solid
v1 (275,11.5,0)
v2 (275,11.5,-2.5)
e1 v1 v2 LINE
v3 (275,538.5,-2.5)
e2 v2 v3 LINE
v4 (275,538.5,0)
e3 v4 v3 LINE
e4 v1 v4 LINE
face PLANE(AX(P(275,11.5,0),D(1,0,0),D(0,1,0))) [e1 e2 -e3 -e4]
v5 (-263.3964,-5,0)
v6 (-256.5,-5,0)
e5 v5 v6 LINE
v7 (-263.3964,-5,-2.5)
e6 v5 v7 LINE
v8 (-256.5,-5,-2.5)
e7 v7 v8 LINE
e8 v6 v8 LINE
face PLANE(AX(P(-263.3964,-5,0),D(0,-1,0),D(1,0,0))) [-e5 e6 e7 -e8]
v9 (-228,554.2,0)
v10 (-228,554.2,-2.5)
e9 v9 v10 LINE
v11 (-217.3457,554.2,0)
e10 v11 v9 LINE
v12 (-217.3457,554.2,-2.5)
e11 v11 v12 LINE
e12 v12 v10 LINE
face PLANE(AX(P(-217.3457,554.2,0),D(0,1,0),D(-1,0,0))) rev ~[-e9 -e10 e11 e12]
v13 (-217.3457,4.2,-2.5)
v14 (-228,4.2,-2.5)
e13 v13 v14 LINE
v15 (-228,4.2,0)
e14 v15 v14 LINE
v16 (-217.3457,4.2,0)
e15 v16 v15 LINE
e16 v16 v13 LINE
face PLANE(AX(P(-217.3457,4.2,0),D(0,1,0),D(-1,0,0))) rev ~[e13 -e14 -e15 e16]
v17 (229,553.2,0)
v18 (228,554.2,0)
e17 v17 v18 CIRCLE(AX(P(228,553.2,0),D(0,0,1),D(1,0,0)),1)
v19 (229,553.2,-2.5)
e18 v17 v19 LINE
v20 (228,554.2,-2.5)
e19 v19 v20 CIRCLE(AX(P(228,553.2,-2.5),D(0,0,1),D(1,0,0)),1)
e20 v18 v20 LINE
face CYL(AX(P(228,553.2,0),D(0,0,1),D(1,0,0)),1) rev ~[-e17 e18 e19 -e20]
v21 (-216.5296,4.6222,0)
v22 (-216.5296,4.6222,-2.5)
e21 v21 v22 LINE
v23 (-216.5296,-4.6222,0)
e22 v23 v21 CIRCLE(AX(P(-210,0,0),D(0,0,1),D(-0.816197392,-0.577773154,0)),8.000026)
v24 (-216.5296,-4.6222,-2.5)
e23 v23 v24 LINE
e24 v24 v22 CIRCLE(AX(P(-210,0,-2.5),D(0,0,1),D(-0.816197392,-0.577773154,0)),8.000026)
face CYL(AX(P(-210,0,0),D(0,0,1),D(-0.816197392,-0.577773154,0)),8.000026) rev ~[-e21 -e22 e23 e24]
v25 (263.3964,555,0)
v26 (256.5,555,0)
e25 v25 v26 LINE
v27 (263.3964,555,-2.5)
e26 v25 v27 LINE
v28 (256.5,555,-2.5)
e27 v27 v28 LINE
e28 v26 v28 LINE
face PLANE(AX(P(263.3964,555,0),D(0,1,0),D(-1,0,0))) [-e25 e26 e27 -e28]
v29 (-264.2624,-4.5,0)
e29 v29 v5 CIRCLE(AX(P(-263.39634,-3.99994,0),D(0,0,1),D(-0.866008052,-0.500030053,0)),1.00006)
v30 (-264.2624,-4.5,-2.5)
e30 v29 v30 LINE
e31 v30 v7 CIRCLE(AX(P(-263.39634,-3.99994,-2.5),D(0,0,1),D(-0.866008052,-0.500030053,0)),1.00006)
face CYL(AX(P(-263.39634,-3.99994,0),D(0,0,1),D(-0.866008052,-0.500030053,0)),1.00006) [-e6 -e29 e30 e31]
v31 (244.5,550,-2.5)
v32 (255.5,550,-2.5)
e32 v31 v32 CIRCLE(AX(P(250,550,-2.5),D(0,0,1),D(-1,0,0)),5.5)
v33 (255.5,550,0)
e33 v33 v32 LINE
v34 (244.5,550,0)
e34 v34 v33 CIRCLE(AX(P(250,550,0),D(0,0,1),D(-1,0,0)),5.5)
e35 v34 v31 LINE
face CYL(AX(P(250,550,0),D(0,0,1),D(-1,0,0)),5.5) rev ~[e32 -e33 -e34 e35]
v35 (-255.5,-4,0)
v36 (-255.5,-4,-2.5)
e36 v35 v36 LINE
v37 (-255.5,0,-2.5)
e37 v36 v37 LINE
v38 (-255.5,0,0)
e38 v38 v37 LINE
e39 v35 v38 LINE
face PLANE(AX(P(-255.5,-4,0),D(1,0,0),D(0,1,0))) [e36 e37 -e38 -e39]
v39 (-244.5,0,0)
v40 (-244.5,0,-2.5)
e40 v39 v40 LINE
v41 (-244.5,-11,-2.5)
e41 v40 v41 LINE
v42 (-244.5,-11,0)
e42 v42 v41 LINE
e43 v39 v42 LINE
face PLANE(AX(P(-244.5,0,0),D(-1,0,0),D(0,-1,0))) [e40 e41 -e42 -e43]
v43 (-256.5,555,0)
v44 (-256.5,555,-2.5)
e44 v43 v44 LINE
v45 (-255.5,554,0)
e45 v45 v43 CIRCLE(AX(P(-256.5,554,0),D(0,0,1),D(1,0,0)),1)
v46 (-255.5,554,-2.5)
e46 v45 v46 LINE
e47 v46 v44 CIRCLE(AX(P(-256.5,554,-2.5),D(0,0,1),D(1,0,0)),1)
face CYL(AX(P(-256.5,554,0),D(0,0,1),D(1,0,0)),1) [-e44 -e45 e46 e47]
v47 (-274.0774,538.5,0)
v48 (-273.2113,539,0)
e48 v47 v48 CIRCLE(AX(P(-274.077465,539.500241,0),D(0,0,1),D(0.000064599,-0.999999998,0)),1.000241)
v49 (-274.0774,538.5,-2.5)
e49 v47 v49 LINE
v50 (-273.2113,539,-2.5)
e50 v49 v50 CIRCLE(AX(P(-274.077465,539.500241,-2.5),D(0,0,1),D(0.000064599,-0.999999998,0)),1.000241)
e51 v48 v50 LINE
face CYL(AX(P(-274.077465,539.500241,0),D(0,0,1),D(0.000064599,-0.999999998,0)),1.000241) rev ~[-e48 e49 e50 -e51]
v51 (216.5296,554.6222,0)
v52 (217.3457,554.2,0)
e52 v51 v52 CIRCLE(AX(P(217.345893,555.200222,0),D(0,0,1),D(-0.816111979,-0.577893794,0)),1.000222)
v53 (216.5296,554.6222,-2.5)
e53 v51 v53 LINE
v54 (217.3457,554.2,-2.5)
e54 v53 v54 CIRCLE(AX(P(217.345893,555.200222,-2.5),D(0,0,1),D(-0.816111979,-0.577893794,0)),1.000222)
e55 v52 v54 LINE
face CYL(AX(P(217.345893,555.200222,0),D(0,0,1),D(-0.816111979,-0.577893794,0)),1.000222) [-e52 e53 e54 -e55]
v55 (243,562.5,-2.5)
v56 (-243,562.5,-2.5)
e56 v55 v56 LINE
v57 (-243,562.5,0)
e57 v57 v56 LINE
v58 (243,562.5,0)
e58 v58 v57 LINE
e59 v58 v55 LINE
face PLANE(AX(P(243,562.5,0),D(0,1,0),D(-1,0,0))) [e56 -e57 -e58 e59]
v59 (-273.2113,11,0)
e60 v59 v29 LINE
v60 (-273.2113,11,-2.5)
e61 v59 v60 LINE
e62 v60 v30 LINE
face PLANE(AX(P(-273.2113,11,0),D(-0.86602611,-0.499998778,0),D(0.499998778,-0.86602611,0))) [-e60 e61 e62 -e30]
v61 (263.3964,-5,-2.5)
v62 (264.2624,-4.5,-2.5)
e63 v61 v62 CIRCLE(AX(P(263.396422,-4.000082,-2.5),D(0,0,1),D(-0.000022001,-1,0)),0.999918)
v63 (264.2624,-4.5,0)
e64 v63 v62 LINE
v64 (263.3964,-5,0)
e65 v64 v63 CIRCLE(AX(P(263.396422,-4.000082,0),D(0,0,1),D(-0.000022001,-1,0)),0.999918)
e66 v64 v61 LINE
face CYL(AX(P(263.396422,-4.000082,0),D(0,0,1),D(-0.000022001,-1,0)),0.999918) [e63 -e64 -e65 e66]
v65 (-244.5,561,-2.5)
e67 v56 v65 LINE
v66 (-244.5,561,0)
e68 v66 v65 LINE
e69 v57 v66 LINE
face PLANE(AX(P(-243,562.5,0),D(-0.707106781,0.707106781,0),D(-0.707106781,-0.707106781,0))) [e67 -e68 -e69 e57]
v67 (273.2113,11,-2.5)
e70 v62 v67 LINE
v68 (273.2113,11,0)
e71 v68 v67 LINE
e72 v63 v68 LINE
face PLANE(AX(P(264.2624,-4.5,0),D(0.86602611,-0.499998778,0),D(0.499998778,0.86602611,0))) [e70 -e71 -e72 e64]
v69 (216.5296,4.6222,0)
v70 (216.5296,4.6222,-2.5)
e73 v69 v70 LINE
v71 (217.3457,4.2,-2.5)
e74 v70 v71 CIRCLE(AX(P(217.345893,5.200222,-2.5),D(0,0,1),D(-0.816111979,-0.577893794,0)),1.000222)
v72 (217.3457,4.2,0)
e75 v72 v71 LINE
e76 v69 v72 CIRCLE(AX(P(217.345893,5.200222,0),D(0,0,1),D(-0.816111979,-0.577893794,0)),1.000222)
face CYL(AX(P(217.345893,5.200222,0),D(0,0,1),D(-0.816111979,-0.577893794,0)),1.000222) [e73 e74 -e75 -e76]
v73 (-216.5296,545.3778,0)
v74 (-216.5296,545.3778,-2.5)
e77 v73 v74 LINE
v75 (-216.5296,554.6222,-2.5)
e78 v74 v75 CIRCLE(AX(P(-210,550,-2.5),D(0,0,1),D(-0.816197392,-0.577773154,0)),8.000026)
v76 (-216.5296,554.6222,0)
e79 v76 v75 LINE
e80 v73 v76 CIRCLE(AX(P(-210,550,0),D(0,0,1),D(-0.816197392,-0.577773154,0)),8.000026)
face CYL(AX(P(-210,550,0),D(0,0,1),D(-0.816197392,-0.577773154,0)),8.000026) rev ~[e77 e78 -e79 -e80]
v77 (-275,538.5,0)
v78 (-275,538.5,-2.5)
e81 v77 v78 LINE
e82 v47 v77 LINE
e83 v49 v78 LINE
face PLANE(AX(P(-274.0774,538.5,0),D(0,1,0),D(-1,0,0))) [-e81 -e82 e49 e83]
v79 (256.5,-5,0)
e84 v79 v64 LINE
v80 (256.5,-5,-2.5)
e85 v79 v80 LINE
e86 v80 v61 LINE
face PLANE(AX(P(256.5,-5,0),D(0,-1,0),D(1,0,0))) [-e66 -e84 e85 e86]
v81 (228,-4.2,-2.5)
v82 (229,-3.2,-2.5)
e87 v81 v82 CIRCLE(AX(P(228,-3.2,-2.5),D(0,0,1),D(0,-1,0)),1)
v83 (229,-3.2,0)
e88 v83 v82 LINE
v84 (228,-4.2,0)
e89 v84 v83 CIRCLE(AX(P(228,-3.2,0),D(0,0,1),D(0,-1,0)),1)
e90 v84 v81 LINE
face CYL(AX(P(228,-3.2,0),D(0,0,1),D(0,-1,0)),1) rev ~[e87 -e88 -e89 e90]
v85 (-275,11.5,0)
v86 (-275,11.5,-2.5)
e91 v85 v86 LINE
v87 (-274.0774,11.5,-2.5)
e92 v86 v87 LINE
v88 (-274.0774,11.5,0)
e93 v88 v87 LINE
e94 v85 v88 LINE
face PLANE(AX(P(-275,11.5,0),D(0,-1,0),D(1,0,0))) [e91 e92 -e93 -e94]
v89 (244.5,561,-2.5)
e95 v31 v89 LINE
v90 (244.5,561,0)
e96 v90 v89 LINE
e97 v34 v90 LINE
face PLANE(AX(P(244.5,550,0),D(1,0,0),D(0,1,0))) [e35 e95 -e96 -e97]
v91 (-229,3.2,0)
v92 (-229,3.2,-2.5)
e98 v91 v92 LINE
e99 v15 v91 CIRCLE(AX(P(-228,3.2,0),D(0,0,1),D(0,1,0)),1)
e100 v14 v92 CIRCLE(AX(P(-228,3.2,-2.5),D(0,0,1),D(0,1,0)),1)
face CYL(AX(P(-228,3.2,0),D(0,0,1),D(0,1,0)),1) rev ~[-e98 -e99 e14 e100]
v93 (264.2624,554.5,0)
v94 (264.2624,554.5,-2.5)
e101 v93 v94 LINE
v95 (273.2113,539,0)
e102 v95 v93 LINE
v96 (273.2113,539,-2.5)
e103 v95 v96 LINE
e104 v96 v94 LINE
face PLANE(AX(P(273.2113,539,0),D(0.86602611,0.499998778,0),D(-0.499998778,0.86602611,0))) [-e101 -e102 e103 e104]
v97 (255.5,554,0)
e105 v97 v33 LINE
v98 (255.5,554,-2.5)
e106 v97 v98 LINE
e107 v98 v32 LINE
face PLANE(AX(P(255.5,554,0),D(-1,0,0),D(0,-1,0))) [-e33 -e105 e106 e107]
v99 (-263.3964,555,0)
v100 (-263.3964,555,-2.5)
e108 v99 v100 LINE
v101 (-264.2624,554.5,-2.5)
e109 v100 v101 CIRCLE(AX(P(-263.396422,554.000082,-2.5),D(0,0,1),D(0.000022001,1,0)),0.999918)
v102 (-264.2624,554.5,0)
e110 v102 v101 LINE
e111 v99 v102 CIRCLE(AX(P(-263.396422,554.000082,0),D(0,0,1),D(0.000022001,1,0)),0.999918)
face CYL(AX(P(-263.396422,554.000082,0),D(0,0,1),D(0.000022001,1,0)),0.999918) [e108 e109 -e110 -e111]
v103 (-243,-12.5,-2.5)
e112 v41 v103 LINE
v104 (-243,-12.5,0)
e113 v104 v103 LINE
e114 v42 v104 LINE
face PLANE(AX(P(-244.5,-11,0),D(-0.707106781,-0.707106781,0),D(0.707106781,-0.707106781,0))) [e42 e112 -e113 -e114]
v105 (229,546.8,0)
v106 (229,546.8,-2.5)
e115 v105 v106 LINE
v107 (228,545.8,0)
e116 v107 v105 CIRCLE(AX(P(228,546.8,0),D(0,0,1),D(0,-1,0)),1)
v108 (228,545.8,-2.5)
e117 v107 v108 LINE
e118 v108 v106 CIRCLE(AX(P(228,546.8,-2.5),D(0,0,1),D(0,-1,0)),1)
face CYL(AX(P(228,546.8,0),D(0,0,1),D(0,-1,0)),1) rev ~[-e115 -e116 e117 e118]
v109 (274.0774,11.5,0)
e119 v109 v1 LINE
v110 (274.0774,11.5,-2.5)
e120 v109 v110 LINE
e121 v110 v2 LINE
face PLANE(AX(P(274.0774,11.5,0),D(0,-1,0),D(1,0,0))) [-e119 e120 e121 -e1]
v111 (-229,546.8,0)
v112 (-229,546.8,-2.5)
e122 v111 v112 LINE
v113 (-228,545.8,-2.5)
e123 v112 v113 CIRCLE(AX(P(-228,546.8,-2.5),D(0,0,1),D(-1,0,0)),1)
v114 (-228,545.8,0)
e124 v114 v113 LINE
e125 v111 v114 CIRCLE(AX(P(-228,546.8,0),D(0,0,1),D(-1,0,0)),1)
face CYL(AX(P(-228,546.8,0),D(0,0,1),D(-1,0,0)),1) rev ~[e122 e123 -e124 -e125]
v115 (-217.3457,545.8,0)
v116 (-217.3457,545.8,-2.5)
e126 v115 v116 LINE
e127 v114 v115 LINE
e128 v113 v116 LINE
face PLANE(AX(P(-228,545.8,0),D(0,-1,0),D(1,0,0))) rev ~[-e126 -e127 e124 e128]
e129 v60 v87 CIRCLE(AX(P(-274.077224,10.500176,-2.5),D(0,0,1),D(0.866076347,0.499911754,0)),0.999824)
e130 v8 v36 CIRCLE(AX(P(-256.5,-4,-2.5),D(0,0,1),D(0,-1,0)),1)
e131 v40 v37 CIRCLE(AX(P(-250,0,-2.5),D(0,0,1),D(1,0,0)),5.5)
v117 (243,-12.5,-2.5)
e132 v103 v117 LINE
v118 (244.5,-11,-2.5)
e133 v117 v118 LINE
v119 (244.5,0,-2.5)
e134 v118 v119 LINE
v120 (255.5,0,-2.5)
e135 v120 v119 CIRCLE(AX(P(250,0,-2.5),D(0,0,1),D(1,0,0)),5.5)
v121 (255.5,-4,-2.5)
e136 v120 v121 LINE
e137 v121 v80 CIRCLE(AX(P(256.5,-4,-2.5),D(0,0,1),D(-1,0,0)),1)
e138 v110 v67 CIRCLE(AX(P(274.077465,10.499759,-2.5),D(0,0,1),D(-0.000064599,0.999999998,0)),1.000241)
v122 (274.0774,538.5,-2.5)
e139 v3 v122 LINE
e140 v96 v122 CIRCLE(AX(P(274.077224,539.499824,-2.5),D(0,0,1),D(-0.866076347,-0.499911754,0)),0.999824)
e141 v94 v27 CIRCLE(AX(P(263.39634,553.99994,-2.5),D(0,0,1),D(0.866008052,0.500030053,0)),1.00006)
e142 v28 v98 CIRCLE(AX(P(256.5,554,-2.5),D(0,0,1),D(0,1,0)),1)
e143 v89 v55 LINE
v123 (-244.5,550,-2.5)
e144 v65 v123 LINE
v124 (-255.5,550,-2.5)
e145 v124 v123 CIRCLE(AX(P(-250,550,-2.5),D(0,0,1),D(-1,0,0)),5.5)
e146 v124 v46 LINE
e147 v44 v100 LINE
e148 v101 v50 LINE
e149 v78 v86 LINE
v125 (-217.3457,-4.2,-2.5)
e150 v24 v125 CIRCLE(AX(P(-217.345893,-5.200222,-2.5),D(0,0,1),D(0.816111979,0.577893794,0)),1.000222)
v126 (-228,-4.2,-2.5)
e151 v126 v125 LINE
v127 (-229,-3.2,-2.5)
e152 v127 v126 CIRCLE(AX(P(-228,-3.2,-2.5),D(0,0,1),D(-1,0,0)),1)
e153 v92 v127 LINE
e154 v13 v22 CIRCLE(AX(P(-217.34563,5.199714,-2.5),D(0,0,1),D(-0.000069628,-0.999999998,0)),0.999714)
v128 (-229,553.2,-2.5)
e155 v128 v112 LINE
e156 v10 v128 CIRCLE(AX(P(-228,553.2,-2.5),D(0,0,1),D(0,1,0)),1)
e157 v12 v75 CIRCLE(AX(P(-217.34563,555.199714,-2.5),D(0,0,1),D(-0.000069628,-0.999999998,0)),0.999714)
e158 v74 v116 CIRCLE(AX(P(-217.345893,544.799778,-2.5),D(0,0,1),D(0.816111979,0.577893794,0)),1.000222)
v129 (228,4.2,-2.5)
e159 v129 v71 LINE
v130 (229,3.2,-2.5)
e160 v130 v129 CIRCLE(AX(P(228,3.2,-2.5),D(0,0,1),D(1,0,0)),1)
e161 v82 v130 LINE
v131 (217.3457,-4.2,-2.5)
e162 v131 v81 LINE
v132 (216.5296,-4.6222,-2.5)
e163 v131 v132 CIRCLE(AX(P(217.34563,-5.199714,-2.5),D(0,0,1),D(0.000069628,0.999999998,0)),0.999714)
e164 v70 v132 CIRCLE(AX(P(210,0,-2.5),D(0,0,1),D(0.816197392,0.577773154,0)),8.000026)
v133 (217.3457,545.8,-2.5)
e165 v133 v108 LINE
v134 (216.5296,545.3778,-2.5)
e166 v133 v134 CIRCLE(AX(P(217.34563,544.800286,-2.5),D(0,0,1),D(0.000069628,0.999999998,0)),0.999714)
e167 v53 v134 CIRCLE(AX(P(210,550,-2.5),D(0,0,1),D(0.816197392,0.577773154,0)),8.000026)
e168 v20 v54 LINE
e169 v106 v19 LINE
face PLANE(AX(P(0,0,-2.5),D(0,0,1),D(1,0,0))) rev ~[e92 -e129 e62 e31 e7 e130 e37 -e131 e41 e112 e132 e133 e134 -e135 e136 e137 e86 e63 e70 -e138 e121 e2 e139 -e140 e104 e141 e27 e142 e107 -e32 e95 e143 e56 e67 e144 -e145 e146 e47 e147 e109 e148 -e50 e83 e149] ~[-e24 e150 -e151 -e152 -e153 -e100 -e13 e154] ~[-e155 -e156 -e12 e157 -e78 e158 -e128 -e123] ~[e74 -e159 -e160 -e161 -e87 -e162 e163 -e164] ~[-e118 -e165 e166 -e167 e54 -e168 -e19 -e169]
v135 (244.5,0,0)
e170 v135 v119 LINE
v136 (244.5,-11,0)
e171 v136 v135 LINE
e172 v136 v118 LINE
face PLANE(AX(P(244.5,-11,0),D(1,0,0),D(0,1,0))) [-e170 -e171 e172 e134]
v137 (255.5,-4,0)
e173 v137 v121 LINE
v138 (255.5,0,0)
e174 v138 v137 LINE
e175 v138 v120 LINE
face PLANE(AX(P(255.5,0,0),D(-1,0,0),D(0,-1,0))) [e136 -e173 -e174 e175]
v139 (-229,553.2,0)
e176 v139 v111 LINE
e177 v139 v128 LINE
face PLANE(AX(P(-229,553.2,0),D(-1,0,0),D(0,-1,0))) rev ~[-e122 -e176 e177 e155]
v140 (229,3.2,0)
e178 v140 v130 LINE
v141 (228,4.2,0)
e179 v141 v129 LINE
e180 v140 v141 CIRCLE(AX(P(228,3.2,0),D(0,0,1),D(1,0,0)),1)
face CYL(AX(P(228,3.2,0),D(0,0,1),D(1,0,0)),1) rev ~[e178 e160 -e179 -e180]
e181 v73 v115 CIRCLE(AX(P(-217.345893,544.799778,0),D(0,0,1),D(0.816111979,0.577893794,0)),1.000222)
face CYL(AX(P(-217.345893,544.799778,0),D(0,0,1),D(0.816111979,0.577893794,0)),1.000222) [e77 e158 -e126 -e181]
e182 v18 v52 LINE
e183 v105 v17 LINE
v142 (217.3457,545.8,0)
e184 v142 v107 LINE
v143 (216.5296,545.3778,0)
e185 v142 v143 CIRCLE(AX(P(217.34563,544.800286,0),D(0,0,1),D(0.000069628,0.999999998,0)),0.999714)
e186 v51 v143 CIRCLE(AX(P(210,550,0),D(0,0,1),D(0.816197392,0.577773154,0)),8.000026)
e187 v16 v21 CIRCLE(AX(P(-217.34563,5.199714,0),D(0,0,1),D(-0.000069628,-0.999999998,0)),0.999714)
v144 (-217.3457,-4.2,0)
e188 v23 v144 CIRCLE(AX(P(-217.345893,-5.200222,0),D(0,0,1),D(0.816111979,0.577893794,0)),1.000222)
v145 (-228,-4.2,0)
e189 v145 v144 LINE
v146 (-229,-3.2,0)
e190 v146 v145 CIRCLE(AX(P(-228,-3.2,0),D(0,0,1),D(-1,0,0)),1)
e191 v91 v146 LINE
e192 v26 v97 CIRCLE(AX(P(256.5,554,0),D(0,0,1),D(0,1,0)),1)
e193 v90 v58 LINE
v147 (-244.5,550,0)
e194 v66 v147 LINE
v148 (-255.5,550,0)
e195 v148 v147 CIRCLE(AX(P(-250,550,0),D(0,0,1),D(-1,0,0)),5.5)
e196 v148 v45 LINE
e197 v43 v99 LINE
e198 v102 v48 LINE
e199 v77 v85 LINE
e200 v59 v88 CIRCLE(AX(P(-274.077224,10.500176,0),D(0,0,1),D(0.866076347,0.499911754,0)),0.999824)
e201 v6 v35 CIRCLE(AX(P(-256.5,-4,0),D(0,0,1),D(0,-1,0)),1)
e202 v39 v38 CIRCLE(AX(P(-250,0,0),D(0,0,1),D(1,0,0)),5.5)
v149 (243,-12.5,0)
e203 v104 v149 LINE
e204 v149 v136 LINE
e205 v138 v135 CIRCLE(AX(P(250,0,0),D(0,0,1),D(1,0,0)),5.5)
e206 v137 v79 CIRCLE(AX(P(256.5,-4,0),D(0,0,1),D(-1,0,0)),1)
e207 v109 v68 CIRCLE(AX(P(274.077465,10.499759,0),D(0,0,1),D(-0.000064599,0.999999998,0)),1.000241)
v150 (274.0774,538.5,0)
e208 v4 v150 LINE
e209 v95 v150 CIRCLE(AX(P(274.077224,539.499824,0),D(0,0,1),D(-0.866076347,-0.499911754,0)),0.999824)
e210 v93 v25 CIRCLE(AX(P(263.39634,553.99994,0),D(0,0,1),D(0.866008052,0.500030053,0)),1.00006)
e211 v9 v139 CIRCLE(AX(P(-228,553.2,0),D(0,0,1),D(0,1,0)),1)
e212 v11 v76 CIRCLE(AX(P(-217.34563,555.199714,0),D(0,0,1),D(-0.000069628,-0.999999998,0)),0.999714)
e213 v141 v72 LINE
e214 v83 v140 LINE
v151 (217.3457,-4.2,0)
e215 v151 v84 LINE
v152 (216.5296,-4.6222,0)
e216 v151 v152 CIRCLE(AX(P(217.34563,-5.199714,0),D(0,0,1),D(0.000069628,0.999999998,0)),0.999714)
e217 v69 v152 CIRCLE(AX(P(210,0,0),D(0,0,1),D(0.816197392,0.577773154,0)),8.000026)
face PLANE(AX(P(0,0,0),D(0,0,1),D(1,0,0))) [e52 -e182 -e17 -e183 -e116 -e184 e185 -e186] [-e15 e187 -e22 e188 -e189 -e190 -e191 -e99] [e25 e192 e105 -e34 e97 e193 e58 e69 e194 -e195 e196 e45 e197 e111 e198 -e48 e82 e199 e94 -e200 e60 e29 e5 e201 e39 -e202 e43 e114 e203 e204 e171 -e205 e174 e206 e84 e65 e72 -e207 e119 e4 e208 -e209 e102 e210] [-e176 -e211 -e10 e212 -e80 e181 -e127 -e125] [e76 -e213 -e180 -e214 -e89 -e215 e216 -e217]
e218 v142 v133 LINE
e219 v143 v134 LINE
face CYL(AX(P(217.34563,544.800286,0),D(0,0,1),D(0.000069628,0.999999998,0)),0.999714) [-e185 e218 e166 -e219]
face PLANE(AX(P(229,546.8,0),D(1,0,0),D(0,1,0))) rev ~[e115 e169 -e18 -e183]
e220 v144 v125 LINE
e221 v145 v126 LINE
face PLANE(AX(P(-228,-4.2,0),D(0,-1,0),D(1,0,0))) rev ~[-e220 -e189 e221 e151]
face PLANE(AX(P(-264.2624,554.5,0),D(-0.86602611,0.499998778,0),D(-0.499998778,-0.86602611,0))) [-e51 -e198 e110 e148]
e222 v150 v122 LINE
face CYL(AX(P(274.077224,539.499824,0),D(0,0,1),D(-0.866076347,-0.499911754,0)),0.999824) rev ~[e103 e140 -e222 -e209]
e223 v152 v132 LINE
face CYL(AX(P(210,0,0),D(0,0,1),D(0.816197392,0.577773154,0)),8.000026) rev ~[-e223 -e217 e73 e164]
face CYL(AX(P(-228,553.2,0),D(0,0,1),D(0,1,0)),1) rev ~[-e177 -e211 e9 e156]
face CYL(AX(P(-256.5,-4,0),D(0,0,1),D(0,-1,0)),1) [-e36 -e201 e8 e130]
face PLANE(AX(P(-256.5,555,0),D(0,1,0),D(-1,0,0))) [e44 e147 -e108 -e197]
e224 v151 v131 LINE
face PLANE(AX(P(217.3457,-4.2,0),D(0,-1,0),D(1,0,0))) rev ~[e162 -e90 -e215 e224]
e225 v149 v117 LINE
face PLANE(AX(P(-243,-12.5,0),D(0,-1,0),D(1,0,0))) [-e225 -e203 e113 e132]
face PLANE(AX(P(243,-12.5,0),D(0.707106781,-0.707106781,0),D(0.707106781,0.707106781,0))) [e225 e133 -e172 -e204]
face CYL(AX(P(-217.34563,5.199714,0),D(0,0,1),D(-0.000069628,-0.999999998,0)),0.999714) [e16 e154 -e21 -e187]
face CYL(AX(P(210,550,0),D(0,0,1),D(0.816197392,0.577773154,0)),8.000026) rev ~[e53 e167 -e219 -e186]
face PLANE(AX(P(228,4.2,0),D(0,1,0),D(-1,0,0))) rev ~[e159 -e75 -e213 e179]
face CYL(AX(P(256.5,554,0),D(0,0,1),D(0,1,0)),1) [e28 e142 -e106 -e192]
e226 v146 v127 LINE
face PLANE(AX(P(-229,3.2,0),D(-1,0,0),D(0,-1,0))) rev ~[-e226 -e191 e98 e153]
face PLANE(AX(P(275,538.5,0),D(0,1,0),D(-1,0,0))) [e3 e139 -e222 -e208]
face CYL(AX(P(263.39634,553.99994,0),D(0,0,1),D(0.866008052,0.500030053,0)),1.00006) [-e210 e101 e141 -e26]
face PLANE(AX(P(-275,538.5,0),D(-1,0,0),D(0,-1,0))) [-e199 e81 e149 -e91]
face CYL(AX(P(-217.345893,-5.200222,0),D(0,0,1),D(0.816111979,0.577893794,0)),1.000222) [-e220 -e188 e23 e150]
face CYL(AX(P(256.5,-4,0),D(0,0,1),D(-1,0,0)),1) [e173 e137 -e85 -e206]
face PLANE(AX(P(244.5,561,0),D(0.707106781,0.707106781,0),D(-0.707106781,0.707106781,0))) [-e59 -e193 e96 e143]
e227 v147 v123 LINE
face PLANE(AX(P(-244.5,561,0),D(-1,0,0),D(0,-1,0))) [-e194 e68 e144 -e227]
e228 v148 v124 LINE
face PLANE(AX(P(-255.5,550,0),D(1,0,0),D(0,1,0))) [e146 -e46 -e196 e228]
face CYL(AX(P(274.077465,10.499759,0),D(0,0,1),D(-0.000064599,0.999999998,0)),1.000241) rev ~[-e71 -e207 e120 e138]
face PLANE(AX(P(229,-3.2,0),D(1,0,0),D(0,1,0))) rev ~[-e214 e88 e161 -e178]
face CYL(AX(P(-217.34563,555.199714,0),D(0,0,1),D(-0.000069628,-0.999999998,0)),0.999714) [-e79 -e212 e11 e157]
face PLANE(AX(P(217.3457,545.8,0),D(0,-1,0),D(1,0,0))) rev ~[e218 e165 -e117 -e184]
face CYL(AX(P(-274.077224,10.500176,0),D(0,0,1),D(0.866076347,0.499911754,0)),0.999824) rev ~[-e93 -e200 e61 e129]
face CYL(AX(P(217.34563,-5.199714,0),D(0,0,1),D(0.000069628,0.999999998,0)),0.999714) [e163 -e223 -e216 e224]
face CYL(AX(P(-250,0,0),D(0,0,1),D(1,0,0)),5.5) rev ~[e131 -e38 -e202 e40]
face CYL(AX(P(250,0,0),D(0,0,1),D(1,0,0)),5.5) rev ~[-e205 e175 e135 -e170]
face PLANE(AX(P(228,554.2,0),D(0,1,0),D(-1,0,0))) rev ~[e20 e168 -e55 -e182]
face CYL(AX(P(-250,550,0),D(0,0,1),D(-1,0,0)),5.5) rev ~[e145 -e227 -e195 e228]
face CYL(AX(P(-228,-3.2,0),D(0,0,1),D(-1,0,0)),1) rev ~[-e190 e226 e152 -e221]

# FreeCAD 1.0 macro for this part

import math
import FreeCAD as App
import Part
import Sketcher
Q = App.Units.Quantity

doc = App.newDocument("Part")
body = doc.addObject("PartDesign::Body", "Body")

# Sketch on XY plane
sketch1 = doc.addObject("Sketcher::SketchObject", "Sketch")
body.addObject(sketch1)
sketch1.AttachmentSupport = (doc.XY_Plane, [""])
sketch1.MapMode = "FlatFace"
sketch1.addGeometry(Part.LineSegment(App.Vector(-274.1, 538.5, 0), App.Vector(-275, 538.5, 0)), False)
sketch1.addGeometry(Part.LineSegment(App.Vector(-275, 538.5, 0), App.Vector(-275, 11.5, 0)), False)
sketch1.addGeometry(Part.LineSegment(App.Vector(-275, 11.5, 0), App.Vector(-274.1, 11.5, 0)), False)
sketch1.addGeometry(Part.ArcOfCircle(Part.Circle(App.Vector(-274.1, 10.5, 0), App.Vector(0, 0, 1), 1), math.radians(30), math.radians(90)), False)
sketch1.addGeometry(Part.LineSegment(App.Vector(-273.2, 11, 0), App.Vector(-264.3, -4.5, 0)), False)
sketch1.addGeometry(Part.ArcOfCircle(Part.Circle(App.Vector(-263.4, -4, 0), App.Vector(0, 0, 1), 1), math.radians(-150), math.radians(-90)), False)
sketch1.addGeometry(Part.LineSegment(App.Vector(-263.4, -5, 0), App.Vector(-256.5, -5, 0)), False)
sketch1.addGeometry(Part.ArcOfCircle(Part.Circle(App.Vector(-256.5, -4, 0), App.Vector(0, 0, 1), 1), math.radians(-90), math.radians(0)), False)
sketch1.addGeometry(Part.LineSegment(App.Vector(-255.5, -4, 0), App.Vector(-255.5, 0, 0)), False)
sketch1.addGeometry(Part.ArcOfCircle(Part.Circle(App.Vector(-250, 0, 0), App.Vector(0, 0, 1), 5.5), math.radians(0), math.radians(180)), False)
sketch1.addGeometry(Part.LineSegment(App.Vector(-244.5, 0, 0), App.Vector(-244.5, -11, 0)), False)
sketch1.addGeometry(Part.LineSegment(App.Vector(-244.5, -11, 0), App.Vector(-243, -12.5, 0)), False)
sketch1.addGeometry(Part.LineSegment(App.Vector(-243, -12.5, 0), App.Vector(243, -12.5, 0)), False)
sketch1.addGeometry(Part.LineSegment(App.Vector(243, -12.5, 0), App.Vector(244.5, -11, 0)), False)
sketch1.addGeometry(Part.LineSegment(App.Vector(244.5, -11, 0), App.Vector(244.5, 0, 0)), False)
sketch1.addGeometry(Part.ArcOfCircle(Part.Circle(App.Vector(250, 0, 0), App.Vector(0, 0, 1), 5.5), math.radians(0), math.radians(180)), False)
sketch1.addGeometry(Part.LineSegment(App.Vector(255.5, 0, 0), App.Vector(255.5, -4, 0)), False)
sketch1.addGeometry(Part.ArcOfCircle(Part.Circle(App.Vector(256.5, -4, 0), App.Vector(0, 0, 1), 1), math.radians(180), math.radians(270)), False)
sketch1.addGeometry(Part.LineSegment(App.Vector(256.5, -5, 0), App.Vector(263.4, -5, 0)), False)
sketch1.addGeometry(Part.ArcOfCircle(Part.Circle(App.Vector(263.4, -4, 0), App.Vector(0, 0, 1), 1), math.radians(-90), math.radians(-30)), False)
sketch1.addGeometry(Part.LineSegment(App.Vector(264.3, -4.5, 0), App.Vector(273.2, 11, 0)), False)
sketch1.addGeometry(Part.ArcOfCircle(Part.Circle(App.Vector(274.1, 10.5, 0), App.Vector(0, 0, 1), 1), math.radians(90), math.radians(150)), False)
sketch1.addGeometry(Part.LineSegment(App.Vector(274.1, 11.5, 0), App.Vector(275, 11.5, 0)), False)
sketch1.addGeometry(Part.LineSegment(App.Vector(275, 11.5, 0), App.Vector(275, 538.5, 0)), False)
sketch1.addGeometry(Part.LineSegment(App.Vector(275, 538.5, 0), App.Vector(274.1, 538.5, 0)), False)
sketch1.addGeometry(Part.ArcOfCircle(Part.Circle(App.Vector(274.1, 539.5, 0), App.Vector(0, 0, 1), 1), math.radians(-150), math.radians(-90)), False)
sketch1.addGeometry(Part.LineSegment(App.Vector(273.2, 539, 0), App.Vector(264.3, 554.5, 0)), False)
sketch1.addGeometry(Part.ArcOfCircle(Part.Circle(App.Vector(263.4, 554, 0), App.Vector(0, 0, 1), 1), math.radians(30), math.radians(90)), False)
sketch1.addGeometry(Part.LineSegment(App.Vector(263.4, 555, 0), App.Vector(256.5, 555, 0)), False)
sketch1.addGeometry(Part.ArcOfCircle(Part.Circle(App.Vector(256.5, 554, 0), App.Vector(0, 0, 1), 1), math.radians(90), math.radians(180)), False)
sketch1.addGeometry(Part.LineSegment(App.Vector(255.5, 554, 0), App.Vector(255.5, 550, 0)), False)
sketch1.addGeometry(Part.ArcOfCircle(Part.Circle(App.Vector(250, 550, 0), App.Vector(0, 0, 1), 5.5), math.radians(180), math.radians(360)), False)
sketch1.addGeometry(Part.LineSegment(App.Vector(244.5, 550, 0), App.Vector(244.5, 561, 0)), False)
sketch1.addGeometry(Part.LineSegment(App.Vector(244.5, 561, 0), App.Vector(243, 562.5, 0)), False)
sketch1.addGeometry(Part.LineSegment(App.Vector(243, 562.5, 0), App.Vector(-243, 562.5, 0)), False)
sketch1.addGeometry(Part.LineSegment(App.Vector(-243, 562.5, 0), App.Vector(-244.5, 561, 0)), False)
sketch1.addGeometry(Part.LineSegment(App.Vector(-244.5, 561, 0), App.Vector(-244.5, 550, 0)), False)
sketch1.addGeometry(Part.ArcOfCircle(Part.Circle(App.Vector(-250, 550, 0), App.Vector(0, 0, 1), 5.5), math.radians(180), math.radians(360)), False)
sketch1.addGeometry(Part.LineSegment(App.Vector(-255.5, 550, 0), App.Vector(-255.5, 554, 0)), False)
sketch1.addGeometry(Part.ArcOfCircle(Part.Circle(App.Vector(-256.5, 554, 0), App.Vector(0, 0, 1), 1), math.radians(0), math.radians(90)), False)
sketch1.addGeometry(Part.LineSegment(App.Vector(-256.5, 555, 0), App.Vector(-263.4, 555, 0)), False)
sketch1.addGeometry(Part.ArcOfCircle(Part.Circle(App.Vector(-263.4, 554, 0), App.Vector(0, 0, 1), 1), math.radians(90), math.radians(150)), False)
sketch1.addGeometry(Part.LineSegment(App.Vector(-264.3, 554.5, 0), App.Vector(-273.2, 539, 0)), False)
sketch1.addGeometry(Part.ArcOfCircle(Part.Circle(App.Vector(-274.1, 539.5, 0), App.Vector(0, 0, 1), 1), math.radians(-90), math.radians(-30)), False)
sketch1.addGeometry(Part.LineSegment(App.Vector(-229, -3.2, 0), App.Vector(-229, 3.2, 0)), False)
sketch1.addGeometry(Part.ArcOfCircle(Part.Circle(App.Vector(-228, 3.2, 0), App.Vector(0, 0, 1), 1), math.radians(90), math.radians(180)), False)
sketch1.addGeometry(Part.LineSegment(App.Vector(-228, 4.2, 0), App.Vector(-217.3, 4.2, 0)), False)
sketch1.addGeometry(Part.ArcOfCircle(Part.Circle(App.Vector(-217.3, 5.2, 0), App.Vector(0, 0, 1), 1), math.radians(-90), math.radians(-35)), False)
sketch1.addGeometry(Part.ArcOfCircle(Part.Circle(App.Vector(-210, 0, 0), App.Vector(0, 0, 1), 8), math.radians(-145), math.radians(145)), False)
sketch1.addGeometry(Part.ArcOfCircle(Part.Circle(App.Vector(-217.3, -5.2, 0), App.Vector(0, 0, 1), 1), math.radians(35), math.radians(90)), False)
sketch1.addGeometry(Part.LineSegment(App.Vector(-217.3, -4.2, 0), App.Vector(-228, -4.2, 0)), False)
sketch1.addGeometry(Part.ArcOfCircle(Part.Circle(App.Vector(-228, -3.2, 0), App.Vector(0, 0, 1), 1), math.radians(180), math.radians(270)), False)
sketch1.addGeometry(Part.ArcOfCircle(Part.Circle(App.Vector(210, 0, 0), App.Vector(0, 0, 1), 8), math.radians(35), math.radians(325)), False)
sketch1.addGeometry(Part.ArcOfCircle(Part.Circle(App.Vector(217.3, 5.2, 0), App.Vector(0, 0, 1), 1), math.radians(-145), math.radians(-90)), False)
sketch1.addGeometry(Part.LineSegment(App.Vector(217.3, 4.2, 0), App.Vector(228, 4.2, 0)), False)
sketch1.addGeometry(Part.ArcOfCircle(Part.Circle(App.Vector(228, 3.2, 0), App.Vector(0, 0, 1), 1), math.radians(0), math.radians(90)), False)
sketch1.addGeometry(Part.LineSegment(App.Vector(229, 3.2, 0), App.Vector(229, -3.2, 0)), False)
sketch1.addGeometry(Part.ArcOfCircle(Part.Circle(App.Vector(228, -3.2, 0), App.Vector(0, 0, 1), 1), math.radians(-90), math.radians(0)), False)
sketch1.addGeometry(Part.LineSegment(App.Vector(228, -4.2, 0), App.Vector(217.3, -4.2, 0)), False)
sketch1.addGeometry(Part.ArcOfCircle(Part.Circle(App.Vector(217.3, -5.2, 0), App.Vector(0, 0, 1), 1), math.radians(90), math.radians(145)), False)
sketch1.addGeometry(Part.ArcOfCircle(Part.Circle(App.Vector(-228, 546.8, 0), App.Vector(0, 0, 1), 1), math.radians(180), math.radians(270)), False)
sketch1.addGeometry(Part.LineSegment(App.Vector(-229, 546.8, 0), App.Vector(-229, 553.2, 0)), False)
sketch1.addGeometry(Part.ArcOfCircle(Part.Circle(App.Vector(-228, 553.2, 0), App.Vector(0, 0, 1), 1), math.radians(90), math.radians(180)), False)
sketch1.addGeometry(Part.LineSegment(App.Vector(-228, 554.2, 0), App.Vector(-217.3, 554.2, 0)), False)
sketch1.addGeometry(Part.ArcOfCircle(Part.Circle(App.Vector(-217.3, 555.2, 0), App.Vector(0, 0, 1), 1), math.radians(-90), math.radians(-35)), False)
sketch1.addGeometry(Part.ArcOfCircle(Part.Circle(App.Vector(-210, 550, 0), App.Vector(0, 0, 1), 8), math.radians(-145), math.radians(145)), False)
sketch1.addGeometry(Part.ArcOfCircle(Part.Circle(App.Vector(-217.3, 544.8, 0), App.Vector(0, 0, 1), 1), math.radians(35), math.radians(90)), False)
sketch1.addGeometry(Part.LineSegment(App.Vector(-217.3, 545.8, 0), App.Vector(-228, 545.8, 0)), False)
sketch1.addGeometry(Part.ArcOfCircle(Part.Circle(App.Vector(210, 550, 0), App.Vector(0, 0, 1), 8), math.radians(35), math.radians(325)), False)
sketch1.addGeometry(Part.ArcOfCircle(Part.Circle(App.Vector(217.3, 555.2, 0), App.Vector(0, 0, 1), 1), math.radians(-145), math.radians(-90)), False)
sketch1.addGeometry(Part.LineSegment(App.Vector(217.3, 554.2, 0), App.Vector(228, 554.2, 0)), False)
sketch1.addGeometry(Part.ArcOfCircle(Part.Circle(App.Vector(228, 553.2, 0), App.Vector(0, 0, 1), 1), math.radians(0), math.radians(90)), False)
sketch1.addGeometry(Part.LineSegment(App.Vector(229, 553.2, 0), App.Vector(229, 546.8, 0)), False)
sketch1.addGeometry(Part.ArcOfCircle(Part.Circle(App.Vector(228, 546.8, 0), App.Vector(0, 0, 1), 1), math.radians(-90), math.radians(0)), False)
sketch1.addGeometry(Part.LineSegment(App.Vector(228, 545.8, 0), App.Vector(217.3, 545.8, 0)), False)
sketch1.addGeometry(Part.ArcOfCircle(Part.Circle(App.Vector(217.3, 544.8, 0), App.Vector(0, 0, 1), 1), math.radians(90), math.radians(145)), False)
sketch1.addConstraint(Sketcher.Constraint("Coincident", 0, 2, 1, 1))
sketch1.addConstraint(Sketcher.Constraint("Coincident", 1, 2, 2, 1))
sketch1.addConstraint(Sketcher.Constraint("Tangent", 2, 2, 3, 2))
sketch1.addConstraint(Sketcher.Constraint("Tangent", 3, 1, 4, 1))
sketch1.addConstraint(Sketcher.Constraint("Tangent", 4, 2, 5, 1))
sketch1.addConstraint(Sketcher.Constraint("Tangent", 5, 2, 6, 1))
sketch1.addConstraint(Sketcher.Constraint("Tangent", 6, 2, 7, 1))
sketch1.addConstraint(Sketcher.Constraint("Tangent", 7, 2, 8, 1))
sketch1.addConstraint(Sketcher.Constraint("Tangent", 8, 2, 9, 2))
sketch1.addConstraint(Sketcher.Constraint("Tangent", 9, 1, 10, 1))
sketch1.addConstraint(Sketcher.Constraint("Coincident", 10, 2, 11, 1))
sketch1.addConstraint(Sketcher.Constraint("Coincident", 11, 2, 12, 1))
sketch1.addConstraint(Sketcher.Constraint("Coincident", 12, 2, 13, 1))
sketch1.addConstraint(Sketcher.Constraint("Coincident", 13, 2, 14, 1))
sketch1.addConstraint(Sketcher.Constraint("Tangent", 14, 2, 15, 2))
sketch1.addConstraint(Sketcher.Constraint("Tangent", 15, 1, 16, 1))
sketch1.addConstraint(Sketcher.Constraint("Tangent", 16, 2, 17, 1))
sketch1.addConstraint(Sketcher.Constraint("Tangent", 17, 2, 18, 1))
sketch1.addConstraint(Sketcher.Constraint("Tangent", 18, 2, 19, 1))
sketch1.addConstraint(Sketcher.Constraint("Tangent", 19, 2, 20, 1))
sketch1.addConstraint(Sketcher.Constraint("Tangent", 20, 2, 21, 2))
sketch1.addConstraint(Sketcher.Constraint("Tangent", 21, 1, 22, 1))
sketch1.addConstraint(Sketcher.Constraint("Coincident", 22, 2, 23, 1))
sketch1.addConstraint(Sketcher.Constraint("Coincident", 23, 2, 24, 1))
sketch1.addConstraint(Sketcher.Constraint("Tangent", 24, 2, 25, 2))
sketch1.addConstraint(Sketcher.Constraint("Tangent", 25, 1, 26, 1))
sketch1.addConstraint(Sketcher.Constraint("Tangent", 26, 2, 27, 1))
sketch1.addConstraint(Sketcher.Constraint("Tangent", 27, 2, 28, 1))
sketch1.addConstraint(Sketcher.Constraint("Tangent", 28, 2, 29, 1))
sketch1.addConstraint(Sketcher.Constraint("Tangent", 29, 2, 30, 1))
sketch1.addConstraint(Sketcher.Constraint("Tangent", 30, 2, 31, 2))
sketch1.addConstraint(Sketcher.Constraint("Tangent", 31, 1, 32, 1))
sketch1.addConstraint(Sketcher.Constraint("Coincident", 32, 2, 33, 1))
sketch1.addConstraint(Sketcher.Constraint("Coincident", 33, 2, 34, 1))
sketch1.addConstraint(Sketcher.Constraint("Coincident", 34, 2, 35, 1))
sketch1.addConstraint(Sketcher.Constraint("Coincident", 35, 2, 36, 1))
sketch1.addConstraint(Sketcher.Constraint("Tangent", 36, 2, 37, 2))
sketch1.addConstraint(Sketcher.Constraint("Tangent", 37, 1, 38, 1))
sketch1.addConstraint(Sketcher.Constraint("Tangent", 38, 2, 39, 1))
sketch1.addConstraint(Sketcher.Constraint("Tangent", 39, 2, 40, 1))
sketch1.addConstraint(Sketcher.Constraint("Tangent", 40, 2, 41, 1))
sketch1.addConstraint(Sketcher.Constraint("Tangent", 41, 2, 42, 1))
sketch1.addConstraint(Sketcher.Constraint("Tangent", 42, 2, 43, 2))
sketch1.addConstraint(Sketcher.Constraint("Tangent", 43, 1, 0, 1))
sketch1.addConstraint(Sketcher.Constraint("Tangent", 44, 2, 45, 2))
sketch1.addConstraint(Sketcher.Constraint("Tangent", 45, 1, 46, 1))
sketch1.addConstraint(Sketcher.Constraint("Tangent", 46, 2, 47, 1))
sketch1.addConstraint(Sketcher.Constraint("Tangent", 47, 2, 48, 2))
sketch1.addConstraint(Sketcher.Constraint("Tangent", 48, 1, 49, 1))
sketch1.addConstraint(Sketcher.Constraint("Tangent", 49, 2, 50, 1))
sketch1.addConstraint(Sketcher.Constraint("Tangent", 50, 2, 51, 2))
sketch1.addConstraint(Sketcher.Constraint("Tangent", 51, 1, 44, 1))
sketch1.addConstraint(Sketcher.Constraint("Tangent", 52, 1, 53, 1))
sketch1.addConstraint(Sketcher.Constraint("Tangent", 53, 2, 54, 1))
sketch1.addConstraint(Sketcher.Constraint("Tangent", 54, 2, 55, 2))
sketch1.addConstraint(Sketcher.Constraint("Tangent", 55, 1, 56, 1))
sketch1.addConstraint(Sketcher.Constraint("Tangent", 56, 2, 57, 2))
sketch1.addConstraint(Sketcher.Constraint("Tangent", 57, 1, 58, 1))
sketch1.addConstraint(Sketcher.Constraint("Tangent", 58, 2, 59, 1))
sketch1.addConstraint(Sketcher.Constraint("Tangent", 59, 2, 52, 2))
sketch1.addConstraint(Sketcher.Constraint("Tangent", 60, 1, 61, 1))
sketch1.addConstraint(Sketcher.Constraint("Tangent", 61, 2, 62, 2))
sketch1.addConstraint(Sketcher.Constraint("Tangent", 62, 1, 63, 1))
sketch1.addConstraint(Sketcher.Constraint("Tangent", 63, 2, 64, 1))
sketch1.addConstraint(Sketcher.Constraint("Tangent", 64, 2, 65, 2))
sketch1.addConstraint(Sketcher.Constraint("Tangent", 65, 1, 66, 1))
sketch1.addConstraint(Sketcher.Constraint("Tangent", 66, 2, 67, 1))
sketch1.addConstraint(Sketcher.Constraint("Tangent", 67, 2, 60, 2))
sketch1.addConstraint(Sketcher.Constraint("Tangent", 68, 1, 69, 1))
sketch1.addConstraint(Sketcher.Constraint("Tangent", 69, 2, 70, 1))
sketch1.addConstraint(Sketcher.Constraint("Tangent", 70, 2, 71, 2))
sketch1.addConstraint(Sketcher.Constraint("Tangent", 71, 1, 72, 1))
sketch1.addConstraint(Sketcher.Constraint("Tangent", 72, 2, 73, 2))
sketch1.addConstraint(Sketcher.Constraint("Tangent", 73, 1, 74, 1))
sketch1.addConstraint(Sketcher.Constraint("Tangent", 74, 2, 75, 1))
sketch1.addConstraint(Sketcher.Constraint("Tangent", 75, 2, 68, 2))
sketch1.addConstraint(Sketcher.Constraint("Horizontal", 0))
sketch1.addConstraint(Sketcher.Constraint("Vertical", 1))
sketch1.addConstraint(Sketcher.Constraint("Horizontal", 2))
sketch1.addConstraint(Sketcher.Constraint("Horizontal", 6))
sketch1.addConstraint(Sketcher.Constraint("Vertical", 8))
sketch1.addConstraint(Sketcher.Constraint("Vertical", 10))
sketch1.addConstraint(Sketcher.Constraint("Horizontal", 12))
sketch1.addConstraint(Sketcher.Constraint("Vertical", 14))
sketch1.addConstraint(Sketcher.Constraint("Vertical", 16))
sketch1.addConstraint(Sketcher.Constraint("Horizontal", 18))
sketch1.addConstraint(Sketcher.Constraint("Horizontal", 22))
sketch1.addConstraint(Sketcher.Constraint("Vertical", 23))
sketch1.addConstraint(Sketcher.Constraint("Horizontal", 24))
sketch1.addConstraint(Sketcher.Constraint("Horizontal", 28))
sketch1.addConstraint(Sketcher.Constraint("Vertical", 30))
sketch1.addConstraint(Sketcher.Constraint("Vertical", 32))
sketch1.addConstraint(Sketcher.Constraint("Horizontal", 34))
sketch1.addConstraint(Sketcher.Constraint("Vertical", 36))
sketch1.addConstraint(Sketcher.Constraint("Vertical", 38))
sketch1.addConstraint(Sketcher.Constraint("Horizontal", 40))
sketch1.addConstraint(Sketcher.Constraint("Vertical", 44))
sketch1.addConstraint(Sketcher.Constraint("Horizontal", 46))
sketch1.addConstraint(Sketcher.Constraint("Horizontal", 50))
sketch1.addConstraint(Sketcher.Constraint("Horizontal", 54))
sketch1.addConstraint(Sketcher.Constraint("Vertical", 56))
sketch1.addConstraint(Sketcher.Constraint("Horizontal", 58))
sketch1.addConstraint(Sketcher.Constraint("Vertical", 61))
sketch1.addConstraint(Sketcher.Constraint("Horizontal", 63))
sketch1.addConstraint(Sketcher.Constraint("Horizontal", 67))
sketch1.addConstraint(Sketcher.Constraint("Horizontal", 70))
sketch1.addConstraint(Sketcher.Constraint("Vertical", 72))
sketch1.addConstraint(Sketcher.Constraint("Horizontal", 74))
sketch1.addConstraint(Sketcher.Constraint("Equal", 3, 5))
sketch1.addConstraint(Sketcher.Constraint("Equal", 5, 7))
sketch1.addConstraint(Sketcher.Constraint("Equal", 9, 15))
sketch1.addConstraint(Sketcher.Constraint("Equal", 7, 17))
sketch1.addConstraint(Sketcher.Constraint("Equal", 17, 19))
sketch1.addConstraint(Sketcher.Constraint("Equal", 19, 21))
sketch1.addConstraint(Sketcher.Constraint("Equal", 21, 25))
sketch1.addConstraint(Sketcher.Constraint("Equal", 25, 27))
sketch1.addConstraint(Sketcher.Constraint("Equal", 27, 29))
sketch1.addConstraint(Sketcher.Constraint("Equal", 15, 31))
sketch1.addConstraint(Sketcher.Constraint("Equal", 31, 37))
sketch1.addConstraint(Sketcher.Constraint("Equal", 29, 39))
sketch1.addConstraint(Sketcher.Constraint("Equal", 39, 41))
sketch1.addConstraint(Sketcher.Constraint("Equal", 41, 43))
sketch1.addConstraint(Sketcher.Constraint("Equal", 43, 45))
sketch1.addConstraint(Sketcher.Constraint("Equal", 45, 47))
sketch1.addConstraint(Sketcher.Constraint("Equal", 47, 49))
sketch1.addConstraint(Sketcher.Constraint("Equal", 49, 51))
sketch1.addConstraint(Sketcher.Constraint("Equal", 48, 52))
sketch1.addConstraint(Sketcher.Constraint("Equal", 51, 53))
sketch1.addConstraint(Sketcher.Constraint("Equal", 53, 55))
sketch1.addConstraint(Sketcher.Constraint("Equal", 55, 57))
sketch1.addConstraint(Sketcher.Constraint("Equal", 57, 59))
sketch1.addConstraint(Sketcher.Constraint("Equal", 59, 60))
sketch1.addConstraint(Sketcher.Constraint("Equal", 60, 62))
sketch1.addConstraint(Sketcher.Constraint("Equal", 62, 64))
sketch1.addConstraint(Sketcher.Constraint("Equal", 52, 65))
sketch1.addConstraint(Sketcher.Constraint("Equal", 64, 66))
sketch1.addConstraint(Sketcher.Constraint("Equal", 65, 68))
sketch1.addConstraint(Sketcher.Constraint("Equal", 66, 69))
sketch1.addConstraint(Sketcher.Constraint("Equal", 69, 71))
sketch1.addConstraint(Sketcher.Constraint("Equal", 71, 73))
sketch1.addConstraint(Sketcher.Constraint("Equal", 73, 75))
sketch1.addConstraint(Sketcher.Constraint("Symmetric", 9, 3, 15, 3, -1, 1))
sketch1.addConstraint(Sketcher.Constraint("Symmetric", 48, 3, 52, 3, -1, 1))
sketch1.addConstraint(Sketcher.Constraint("Symmetric", 51, 3, 55, 3, -1, 1))
sketch1.addConstraint(Sketcher.Constraint("Symmetric", 5, 3, 19, 3, -2))
sketch1.addConstraint(Sketcher.Constraint("Symmetric", 3, 3, 21, 3, -2))
sketch1.addConstraint(Sketcher.Constraint("Symmetric", 31, 3, 37, 3, -2))
sketch1.addConstraint(Sketcher.Constraint("Symmetric", 27, 3, 41, 3, -2))
sketch1.addConstraint(Sketcher.Constraint("Symmetric", 25, 3, 43, 3, -2))
sketch1.addConstraint(Sketcher.Constraint("Symmetric", 47, 3, 53, 3, -2))
sketch1.addConstraint(Sketcher.Constraint("Symmetric", 65, 3, 68, 3, -2))
sketch1.addConstraint(Sketcher.Constraint("Symmetric", 62, 3, 71, 3, -2))
sketch1.addConstraint(Sketcher.Constraint("PointOnObject", 9, 3, -1))
sketch1.addConstraint(Sketcher.Constraint("Perpendicular", 11, 13))
sketch1.addConstraint(Sketcher.Constraint("Parallel", 4, 26))
sketch1.addConstraint(Sketcher.Constraint("Perpendicular", 13, 33))
sketch1.addConstraint(Sketcher.Constraint("Perpendicular", 33, 35))
sketch1.addConstraint(Sketcher.Constraint("Horizontal", 51, 3, 57, 3))
sketch1.addConstraint(Sketcher.Constraint("Horizontal", 37, 3, 65, 3))
sketch1.addConstraint(Sketcher.Constraint("Horizontal", 60, 3, 73, 3))
sketch1.addConstraint(Sketcher.Constraint("Horizontal", 10, 2, 13, 2))
sketch1.addConstraint(Sketcher.Constraint("Horizontal", 32, 2, 35, 2))
sketch1.addConstraint(Sketcher.Constraint("Vertical", 21, 3, 25, 3))
sketch1.addConstraint(Sketcher.Constraint("Vertical", 19, 3, 27, 3))
sketch1.addConstraint(Sketcher.Constraint("Vertical", 17, 3, 29, 3))
sketch1.addConstraint(Sketcher.Constraint("Vertical", 51, 3, 60, 3))
sketch1.addConstraint(Sketcher.Constraint("Vertical", 49, 3, 64, 3))
sketch1.addConstraint(Sketcher.Constraint("Vertical", 48, 3, 65, 3))
sketch1.addConstraint(Sketcher.Constraint("Vertical", 64, 3, 66, 3))
sketch1.addConstraint(Sketcher.Constraint("Vertical", 12, 2, 33, 2))
sketch1.addConstraint(Sketcher.Constraint("Vertical", 11, 2, 34, 2))
sketch1.addConstraint(Sketcher.Constraint("Equal", 2, 22))
sketch1.addConstraint(Sketcher.Constraint("Equal", 16, 30))
sketch1.addConstraint(Sketcher.Constraint("Equal", 14, 32))
sketch1.addConstraint(Sketcher.Constraint("Radius", 3, Q("1 mm")))
sketch1.addConstraint(Sketcher.Constraint("Radius", 48, Q("8 mm")))
sketch1.addConstraint(Sketcher.Constraint("Radius", 9, Q("5.5 mm")))
sketch1.addConstraint(Sketcher.Constraint("DistanceX", 12, 1, 12, 2, Q("486 mm")))
sketch1.addConstraint(Sketcher.Constraint("DistanceY", 1, 2, 1, 1, Q("527 mm")))
sketch1.addConstraint(Sketcher.Constraint("DistanceY", 8, 1, 8, 2, Q("4 mm")))
sketch1.addConstraint(Sketcher.Constraint("DistanceY", 10, 2, 10, 1, Q("11 mm")))
sketch1.addConstraint(Sketcher.Constraint("Angle", 4, Q("-60 deg")))
sketch1.addConstraint(Sketcher.Constraint("DistanceY", 44, 1, 44, 2, Q("6.4 mm")))
sketch1.addConstraint(Sketcher.Constraint("DistanceX", 9, 3, -1, 1, Q("250 mm")))
sketch1.addConstraint(Sketcher.Constraint("DistanceY", -1, 1, 27, 3, Q("554 mm")))
sketch1.addConstraint(Sketcher.Constraint("DistanceX", 45, 3, -1, 1, Q("228 mm")))
sketch1.addConstraint(Sketcher.Constraint("DistanceX", 48, 3, -1, 1, Q("210 mm")))
sketch1.addConstraint(Sketcher.Constraint("DistanceX", 0, 2, -1, 1, Q("275 mm")))
sketch1.addConstraint(Sketcher.Constraint("DistanceX", 0, 2, 0, 1, Q("0.9226 mm")))
pad1 = doc.addObject("PartDesign::Pad", "Pad")
body.addObject(pad1)
pad1.Profile = sketch1
pad1.Length = 2.5
pad1.Reversed = True

doc.recompute()
